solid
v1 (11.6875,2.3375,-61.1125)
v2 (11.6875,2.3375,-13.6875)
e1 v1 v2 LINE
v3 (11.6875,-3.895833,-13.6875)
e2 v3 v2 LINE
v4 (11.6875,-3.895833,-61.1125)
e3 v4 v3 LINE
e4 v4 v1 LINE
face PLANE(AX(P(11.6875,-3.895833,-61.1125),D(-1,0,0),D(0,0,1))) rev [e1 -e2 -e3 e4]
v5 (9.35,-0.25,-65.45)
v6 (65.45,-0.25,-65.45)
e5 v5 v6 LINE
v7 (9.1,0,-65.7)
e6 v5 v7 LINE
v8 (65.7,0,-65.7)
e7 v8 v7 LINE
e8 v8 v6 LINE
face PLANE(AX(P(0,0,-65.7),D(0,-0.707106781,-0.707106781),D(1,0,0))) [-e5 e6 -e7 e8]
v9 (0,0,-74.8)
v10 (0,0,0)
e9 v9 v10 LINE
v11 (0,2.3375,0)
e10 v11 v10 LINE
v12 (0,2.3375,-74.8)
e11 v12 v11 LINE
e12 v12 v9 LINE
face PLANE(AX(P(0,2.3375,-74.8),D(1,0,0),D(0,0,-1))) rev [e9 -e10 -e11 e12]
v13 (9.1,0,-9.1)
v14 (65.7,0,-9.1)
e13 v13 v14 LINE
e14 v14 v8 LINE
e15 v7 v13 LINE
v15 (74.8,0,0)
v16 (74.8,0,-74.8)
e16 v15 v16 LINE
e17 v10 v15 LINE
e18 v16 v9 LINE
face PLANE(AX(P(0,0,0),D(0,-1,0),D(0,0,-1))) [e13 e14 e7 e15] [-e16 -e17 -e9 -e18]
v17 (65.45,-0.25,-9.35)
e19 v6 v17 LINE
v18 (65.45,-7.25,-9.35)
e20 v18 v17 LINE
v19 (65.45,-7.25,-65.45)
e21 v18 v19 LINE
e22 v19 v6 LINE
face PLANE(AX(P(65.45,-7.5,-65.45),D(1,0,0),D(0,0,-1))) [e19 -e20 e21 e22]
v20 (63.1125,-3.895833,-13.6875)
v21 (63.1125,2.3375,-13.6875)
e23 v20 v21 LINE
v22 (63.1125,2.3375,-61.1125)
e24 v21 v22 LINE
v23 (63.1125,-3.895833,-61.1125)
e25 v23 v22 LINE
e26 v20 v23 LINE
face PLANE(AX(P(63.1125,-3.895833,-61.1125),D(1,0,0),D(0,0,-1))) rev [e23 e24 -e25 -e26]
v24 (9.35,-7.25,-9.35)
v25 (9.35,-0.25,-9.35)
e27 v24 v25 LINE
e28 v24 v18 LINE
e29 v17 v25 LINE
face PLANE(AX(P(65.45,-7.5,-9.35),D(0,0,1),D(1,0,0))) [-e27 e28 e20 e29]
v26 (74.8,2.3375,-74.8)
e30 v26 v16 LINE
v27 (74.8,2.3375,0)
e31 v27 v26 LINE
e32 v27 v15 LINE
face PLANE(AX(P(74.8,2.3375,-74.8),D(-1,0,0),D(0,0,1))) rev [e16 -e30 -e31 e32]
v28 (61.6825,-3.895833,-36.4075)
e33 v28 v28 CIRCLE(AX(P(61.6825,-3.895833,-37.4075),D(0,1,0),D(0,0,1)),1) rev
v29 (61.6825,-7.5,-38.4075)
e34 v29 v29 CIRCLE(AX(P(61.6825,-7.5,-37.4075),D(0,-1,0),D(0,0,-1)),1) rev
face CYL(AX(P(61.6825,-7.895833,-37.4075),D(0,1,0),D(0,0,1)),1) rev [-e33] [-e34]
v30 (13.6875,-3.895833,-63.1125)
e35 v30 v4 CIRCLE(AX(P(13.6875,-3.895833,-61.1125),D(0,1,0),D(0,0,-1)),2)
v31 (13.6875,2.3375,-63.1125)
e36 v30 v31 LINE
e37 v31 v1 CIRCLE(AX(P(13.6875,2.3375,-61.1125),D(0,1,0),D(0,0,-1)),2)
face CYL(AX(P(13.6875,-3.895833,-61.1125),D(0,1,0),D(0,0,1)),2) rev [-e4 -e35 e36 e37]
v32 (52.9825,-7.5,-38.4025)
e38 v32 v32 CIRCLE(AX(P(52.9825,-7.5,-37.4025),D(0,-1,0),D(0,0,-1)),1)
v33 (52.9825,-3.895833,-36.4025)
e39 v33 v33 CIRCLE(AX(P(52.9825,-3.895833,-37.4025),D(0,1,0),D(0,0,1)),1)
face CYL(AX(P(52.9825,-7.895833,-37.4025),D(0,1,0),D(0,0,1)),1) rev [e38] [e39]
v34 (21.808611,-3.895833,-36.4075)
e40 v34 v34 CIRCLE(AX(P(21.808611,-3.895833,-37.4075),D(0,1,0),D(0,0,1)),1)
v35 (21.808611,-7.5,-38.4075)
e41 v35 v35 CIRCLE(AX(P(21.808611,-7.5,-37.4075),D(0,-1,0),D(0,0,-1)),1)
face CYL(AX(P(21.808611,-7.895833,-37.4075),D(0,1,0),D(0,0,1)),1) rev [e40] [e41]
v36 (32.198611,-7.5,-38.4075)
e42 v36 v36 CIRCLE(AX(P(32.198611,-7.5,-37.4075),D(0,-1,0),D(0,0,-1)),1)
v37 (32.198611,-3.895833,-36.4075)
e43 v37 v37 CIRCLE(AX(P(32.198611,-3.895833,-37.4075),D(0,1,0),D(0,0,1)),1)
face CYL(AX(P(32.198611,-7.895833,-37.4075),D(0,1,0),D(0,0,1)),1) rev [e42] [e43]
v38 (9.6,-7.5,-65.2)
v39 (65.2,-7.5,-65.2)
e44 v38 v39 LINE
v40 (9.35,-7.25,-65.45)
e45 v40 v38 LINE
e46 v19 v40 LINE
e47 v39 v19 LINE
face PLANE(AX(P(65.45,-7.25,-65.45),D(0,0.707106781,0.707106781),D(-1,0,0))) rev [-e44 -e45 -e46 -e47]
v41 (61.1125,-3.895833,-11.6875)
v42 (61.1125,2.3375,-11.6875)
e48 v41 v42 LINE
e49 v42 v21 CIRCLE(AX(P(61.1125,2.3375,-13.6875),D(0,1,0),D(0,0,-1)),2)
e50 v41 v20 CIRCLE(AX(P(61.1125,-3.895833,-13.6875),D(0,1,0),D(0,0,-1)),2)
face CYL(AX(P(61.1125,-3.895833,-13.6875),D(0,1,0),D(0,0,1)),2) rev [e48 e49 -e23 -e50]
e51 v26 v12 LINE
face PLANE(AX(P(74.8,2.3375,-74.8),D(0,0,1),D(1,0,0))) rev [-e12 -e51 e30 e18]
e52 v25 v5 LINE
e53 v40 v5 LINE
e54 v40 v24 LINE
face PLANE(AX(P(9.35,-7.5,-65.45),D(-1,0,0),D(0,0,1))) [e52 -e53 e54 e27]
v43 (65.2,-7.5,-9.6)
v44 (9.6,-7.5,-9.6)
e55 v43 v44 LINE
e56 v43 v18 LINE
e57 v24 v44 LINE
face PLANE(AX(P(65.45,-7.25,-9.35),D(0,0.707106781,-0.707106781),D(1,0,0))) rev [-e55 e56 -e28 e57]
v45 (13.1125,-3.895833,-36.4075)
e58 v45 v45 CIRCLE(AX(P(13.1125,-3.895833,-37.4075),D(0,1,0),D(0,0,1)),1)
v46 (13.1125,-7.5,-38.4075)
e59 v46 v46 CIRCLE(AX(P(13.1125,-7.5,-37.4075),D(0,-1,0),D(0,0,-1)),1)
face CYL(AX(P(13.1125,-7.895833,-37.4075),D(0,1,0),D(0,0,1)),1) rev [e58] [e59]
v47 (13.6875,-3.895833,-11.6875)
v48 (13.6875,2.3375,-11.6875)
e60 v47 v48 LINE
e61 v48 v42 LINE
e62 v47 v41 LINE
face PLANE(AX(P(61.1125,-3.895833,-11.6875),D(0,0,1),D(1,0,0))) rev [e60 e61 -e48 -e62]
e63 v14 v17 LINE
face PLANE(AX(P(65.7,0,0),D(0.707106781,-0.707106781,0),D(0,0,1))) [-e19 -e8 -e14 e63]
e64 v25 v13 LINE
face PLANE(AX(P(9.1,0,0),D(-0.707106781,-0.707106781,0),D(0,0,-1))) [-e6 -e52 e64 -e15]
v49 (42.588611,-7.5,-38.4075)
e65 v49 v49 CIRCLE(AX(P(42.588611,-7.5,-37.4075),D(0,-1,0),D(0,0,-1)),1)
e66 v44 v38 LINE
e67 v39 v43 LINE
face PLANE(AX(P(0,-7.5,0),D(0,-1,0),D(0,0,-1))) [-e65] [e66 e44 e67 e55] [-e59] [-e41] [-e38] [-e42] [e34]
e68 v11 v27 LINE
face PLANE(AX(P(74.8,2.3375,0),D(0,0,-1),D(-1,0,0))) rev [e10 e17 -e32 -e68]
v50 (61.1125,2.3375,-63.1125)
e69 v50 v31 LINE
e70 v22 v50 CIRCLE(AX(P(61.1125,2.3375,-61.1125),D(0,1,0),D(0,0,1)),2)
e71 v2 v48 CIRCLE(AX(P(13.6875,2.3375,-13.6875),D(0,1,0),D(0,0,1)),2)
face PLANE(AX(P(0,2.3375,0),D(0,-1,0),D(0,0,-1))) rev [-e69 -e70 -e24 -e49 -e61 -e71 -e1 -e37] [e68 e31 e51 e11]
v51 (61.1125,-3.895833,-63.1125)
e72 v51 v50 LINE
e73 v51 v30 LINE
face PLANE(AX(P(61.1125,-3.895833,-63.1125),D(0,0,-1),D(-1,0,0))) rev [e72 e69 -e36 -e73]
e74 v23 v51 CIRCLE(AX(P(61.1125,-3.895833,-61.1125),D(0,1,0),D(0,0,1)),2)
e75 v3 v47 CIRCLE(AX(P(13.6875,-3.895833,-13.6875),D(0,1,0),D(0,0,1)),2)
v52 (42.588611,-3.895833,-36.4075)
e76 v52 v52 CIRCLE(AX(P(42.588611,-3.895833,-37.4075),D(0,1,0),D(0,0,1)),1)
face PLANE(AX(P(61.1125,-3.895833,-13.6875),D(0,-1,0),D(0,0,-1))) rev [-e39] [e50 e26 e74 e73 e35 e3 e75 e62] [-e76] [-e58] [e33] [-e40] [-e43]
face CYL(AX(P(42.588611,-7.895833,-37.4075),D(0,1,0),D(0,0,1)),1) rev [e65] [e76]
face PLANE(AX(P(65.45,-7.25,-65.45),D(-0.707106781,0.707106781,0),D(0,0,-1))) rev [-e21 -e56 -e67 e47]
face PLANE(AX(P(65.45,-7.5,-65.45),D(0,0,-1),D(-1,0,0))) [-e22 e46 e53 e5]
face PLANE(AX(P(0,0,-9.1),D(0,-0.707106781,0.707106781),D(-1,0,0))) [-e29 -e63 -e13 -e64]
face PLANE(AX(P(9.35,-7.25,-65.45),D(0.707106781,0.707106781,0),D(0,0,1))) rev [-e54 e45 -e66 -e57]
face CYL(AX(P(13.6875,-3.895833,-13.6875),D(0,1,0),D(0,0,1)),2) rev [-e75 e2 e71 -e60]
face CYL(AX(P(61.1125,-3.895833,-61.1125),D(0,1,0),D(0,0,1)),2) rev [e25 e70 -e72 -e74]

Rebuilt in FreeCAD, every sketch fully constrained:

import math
import FreeCAD as App
import Part
import Sketcher

V = App.Vector
Q = App.Units.Quantity


def edges_at(feature, points):
    """Names of the edges that pass closest to the given points."""
    edges = feature.Shape.Edges
    near = lambda p: min(range(len(edges)), key=lambda i: edges[i].distToShape(Part.Vertex(*p))[0])
    return sorted({f"Edge{near(p) + 1}" for p in points})


def add_polygon(sketch, points):
    """Adds a closed chain of lines whose ends are joined by coincident constraints."""
    first, n = sketch.GeometryCount, len(points)
    for a, b in zip(points, points[1:] + points[:1]):
        sketch.addGeometry(Part.LineSegment(App.Vector(*a, 0), App.Vector(*b, 0)), False)
    for i in range(n):
        sketch.addConstraint(Sketcher.Constraint("Coincident", first + i, 2, first + (i + 1) % n, 1))

doc = App.newDocument("Part")
body = doc.addObject("PartDesign::Body", "Body")

sketch1 = doc.addObject("Sketcher::SketchObject", "Sketch")
body.addObject(sketch1)
sketch1.AttachmentSupport = (doc.XZ_Plane, [""])
sketch1.MapMode = "FlatFace"
add_polygon(sketch1, [(0, -75), (0, 0), (75, 0), (75, -75)])
sketch1.addConstraint([
    Sketcher.Constraint("Vertical", 0),
    Sketcher.Constraint("Horizontal", 1),
    Sketcher.Constraint("Vertical", 2),
    Sketcher.Constraint("Horizontal", 3),
    Sketcher.Constraint("Coincident", 0, 2, -1, 1),
    Sketcher.Constraint("Equal", 3, 0),
    Sketcher.Constraint("DistanceX", 1, 1, 1, 2, Q("74.8 mm")),
])
pad1 = doc.addObject("PartDesign::Pad", "Pad")
body.addObject(pad1)
pad1.Profile = sketch1
pad1.Length = 2.3375
pad1.Reversed = True

sketch2 = doc.addObject("Sketcher::SketchObject", "Sketch001")
body.addObject(sketch2)
sketch2.AttachmentSupport = (doc.XZ_Plane, [""])
sketch2.MapMode = "FlatFace"
add_polygon(sketch2, [(9, -65), (9, -9), (65, -9), (65, -65)])
sketch2.addConstraint([
    Sketcher.Constraint("Vertical", 0),
    Sketcher.Constraint("Horizontal", 1),
    Sketcher.Constraint("Vertical", 2),
    Sketcher.Constraint("Horizontal", 3),
    Sketcher.Constraint("Equal", 3, 0),
    Sketcher.Constraint("DistanceX", 1, 1, 1, 2, Q("56.1 mm")),
    Sketcher.Constraint("DistanceX", -1, 1, 0, 2, Q("9.35 mm")),
    Sketcher.Constraint("DistanceY", 0, 2, -1, 1, Q("9.35 mm")),
])
pad2 = doc.addObject("PartDesign::Pad", "Pad001")
body.addObject(pad2)
pad2.Profile = sketch2
pad2.Length = 7.5
doc.recompute()

chamfer = doc.addObject("PartDesign::Chamfer", "Chamfer")
body.addObject(chamfer)
chamfer.Base = (pad2, edges_at(pad2, [
    (9.35, -7.5, -37.4),
    (37.4, -7.5, -65.45),
    (65.45, -7.5, -37.4),
    (37.4, -7.5, -9.35),
    (9.35, 0, -37.4),
    (37.4, 0, -9.35),
    (65.45, 0, -37.4),
    (37.4, 0, -65.45),
]))
chamfer.Size = 0.25

sketch3 = doc.addObject("Sketcher::SketchObject", "Sketch002")
body.addObject(sketch3)
sketch3.AttachmentSupport = (doc.XZ_Plane, [""])
sketch3.MapMode = "FlatFace"
sketch3.AttachmentOffset = App.Placement(V(0, 0, -2.3375), App.Rotation())
sketch3.addGeometry([
    Part.LineSegment(V(61.1, -63.1, 0), V(13.7, -63.1, 0)),
    Part.ArcOfCircle(Part.Circle(V(13.7, -61.1, 0), V(0, 0, 1), 2), math.radians(-180), math.radians(-90)),
    Part.LineSegment(V(11.7, -61.1, 0), V(11.7, -13.7, 0)),
    Part.ArcOfCircle(Part.Circle(V(13.7, -13.7, 0), V(0, 0, 1), 2), math.radians(90), math.radians(180)),
    Part.LineSegment(V(13.7, -11.7, 0), V(61.1, -11.7, 0)),
    Part.ArcOfCircle(Part.Circle(V(61.1, -13.7, 0), V(0, 0, 1), 2), math.radians(0), math.radians(90)),
    Part.LineSegment(V(63.1, -13.7, 0), V(63.1, -61.1, 0)),
    Part.ArcOfCircle(Part.Circle(V(61.1, -61.1, 0), V(0, 0, 1), 2), math.radians(-90), math.radians(0)),
], False)
sketch3.addConstraint([
    Sketcher.Constraint("Tangent", 0, 2, 1, 2),
    Sketcher.Constraint("Tangent", 1, 1, 2, 1),
    Sketcher.Constraint("Tangent", 2, 2, 3, 2),
    Sketcher.Constraint("Tangent", 3, 1, 4, 1),
    Sketcher.Constraint("Tangent", 4, 2, 5, 2),
    Sketcher.Constraint("Tangent", 5, 1, 6, 1),
    Sketcher.Constraint("Tangent", 6, 2, 7, 2),
    Sketcher.Constraint("Tangent", 7, 1, 0, 1),
    Sketcher.Constraint("Horizontal", 0),
    Sketcher.Constraint("Vertical", 2),
    Sketcher.Constraint("Horizontal", 4),
    Sketcher.Constraint("Vertical", 6),
    Sketcher.Constraint("Equal", 1, 3),
    Sketcher.Constraint("Equal", 3, 5),
    Sketcher.Constraint("Equal", 5, 7),
    Sketcher.Constraint("Equal", 4, 2),
    Sketcher.Constraint("Radius", 1, Q("2 mm")),
    Sketcher.Constraint("DistanceX", 0, 2, 0, 1, Q("47.425 mm")),
    Sketcher.Constraint("DistanceX", -1, 1, 1, 3, Q("13.6875 mm")),
    Sketcher.Constraint("DistanceY", 1, 3, -1, 1, Q("61.1125 mm")),
])
pocket1 = doc.addObject("PartDesign::Pocket", "Pocket")
body.addObject(pocket1)
pocket1.Profile = sketch3
pocket1.Length = 6.233333
pocket1.Reversed = True

sketch4 = doc.addObject("Sketcher::SketchObject", "Sketch003")
body.addObject(sketch4)
sketch4.AttachmentSupport = (doc.XZ_Plane, [""])
sketch4.MapMode = "FlatFace"
sketch4.AttachmentOffset = App.Placement(V(0, 0, 3.895833), App.Rotation())
sketch4.addGeometry([
    Part.Circle(V(13.1, -37.4, 0), V(0, 0, 1), 1),
    Part.Circle(V(21.8, -37.4, 0), V(0, 0, 1), 1),
    Part.Circle(V(32.2, -37.4, 0), V(0, 0, 1), 1),
    Part.Circle(V(42.6, -37.4, 0), V(0, 0, 1), 1),
    Part.Circle(V(53, -37.4, 0), V(0, 0, 1), 1),
    Part.Circle(V(61.7, -37.4, 0), V(0, 0, 1), 1),
], False)
sketch4.addConstraint([
    Sketcher.Constraint("Equal", 0, 1),
    Sketcher.Constraint("Equal", 1, 2),
    Sketcher.Constraint("Equal", 2, 3),
    Sketcher.Constraint("Equal", 3, 4),
    Sketcher.Constraint("Equal", 4, 5),
    Sketcher.Constraint("Horizontal", 0, 3, 1, 3),
    Sketcher.Constraint("Horizontal", 1, 3, 2, 3),
    Sketcher.Constraint("Horizontal", 2, 3, 3, 3),
    Sketcher.Constraint("Horizontal", 3, 3, 5, 3),
    Sketcher.Constraint("Diameter", 0, Q("2 mm")),
    Sketcher.Constraint("DistanceX", 4, 3, 5, 3, Q("8.7 mm")),
    Sketcher.Constraint("DistanceX", 1, 3, 2, 3, Q("10.39 mm")),
    Sketcher.Constraint("DistanceX", 2, 3, 3, 3, Q("10.39 mm")),
    Sketcher.Constraint("DistanceX", 0, 3, 4, 3, Q("39.87 mm")),
    Sketcher.Constraint("DistanceY", 3, 3, 4, 3, Q("0.005 mm")),
    Sketcher.Constraint("DistanceX", -1, 1, 0, 3, Q("13.1125 mm")),
    Sketcher.Constraint("DistanceY", 0, 3, -1, 1, Q("37.4075 mm")),
    Sketcher.Constraint("DistanceX", -1, 1, 1, 3, Q("21.808611 mm")),
])
pocket2 = doc.addObject("PartDesign::Pocket", "Pocket001")
body.addObject(pocket2)
pocket2.Profile = sketch4
pocket2.Length = 4
pocket2.Reversed = True

doc.recompute()
